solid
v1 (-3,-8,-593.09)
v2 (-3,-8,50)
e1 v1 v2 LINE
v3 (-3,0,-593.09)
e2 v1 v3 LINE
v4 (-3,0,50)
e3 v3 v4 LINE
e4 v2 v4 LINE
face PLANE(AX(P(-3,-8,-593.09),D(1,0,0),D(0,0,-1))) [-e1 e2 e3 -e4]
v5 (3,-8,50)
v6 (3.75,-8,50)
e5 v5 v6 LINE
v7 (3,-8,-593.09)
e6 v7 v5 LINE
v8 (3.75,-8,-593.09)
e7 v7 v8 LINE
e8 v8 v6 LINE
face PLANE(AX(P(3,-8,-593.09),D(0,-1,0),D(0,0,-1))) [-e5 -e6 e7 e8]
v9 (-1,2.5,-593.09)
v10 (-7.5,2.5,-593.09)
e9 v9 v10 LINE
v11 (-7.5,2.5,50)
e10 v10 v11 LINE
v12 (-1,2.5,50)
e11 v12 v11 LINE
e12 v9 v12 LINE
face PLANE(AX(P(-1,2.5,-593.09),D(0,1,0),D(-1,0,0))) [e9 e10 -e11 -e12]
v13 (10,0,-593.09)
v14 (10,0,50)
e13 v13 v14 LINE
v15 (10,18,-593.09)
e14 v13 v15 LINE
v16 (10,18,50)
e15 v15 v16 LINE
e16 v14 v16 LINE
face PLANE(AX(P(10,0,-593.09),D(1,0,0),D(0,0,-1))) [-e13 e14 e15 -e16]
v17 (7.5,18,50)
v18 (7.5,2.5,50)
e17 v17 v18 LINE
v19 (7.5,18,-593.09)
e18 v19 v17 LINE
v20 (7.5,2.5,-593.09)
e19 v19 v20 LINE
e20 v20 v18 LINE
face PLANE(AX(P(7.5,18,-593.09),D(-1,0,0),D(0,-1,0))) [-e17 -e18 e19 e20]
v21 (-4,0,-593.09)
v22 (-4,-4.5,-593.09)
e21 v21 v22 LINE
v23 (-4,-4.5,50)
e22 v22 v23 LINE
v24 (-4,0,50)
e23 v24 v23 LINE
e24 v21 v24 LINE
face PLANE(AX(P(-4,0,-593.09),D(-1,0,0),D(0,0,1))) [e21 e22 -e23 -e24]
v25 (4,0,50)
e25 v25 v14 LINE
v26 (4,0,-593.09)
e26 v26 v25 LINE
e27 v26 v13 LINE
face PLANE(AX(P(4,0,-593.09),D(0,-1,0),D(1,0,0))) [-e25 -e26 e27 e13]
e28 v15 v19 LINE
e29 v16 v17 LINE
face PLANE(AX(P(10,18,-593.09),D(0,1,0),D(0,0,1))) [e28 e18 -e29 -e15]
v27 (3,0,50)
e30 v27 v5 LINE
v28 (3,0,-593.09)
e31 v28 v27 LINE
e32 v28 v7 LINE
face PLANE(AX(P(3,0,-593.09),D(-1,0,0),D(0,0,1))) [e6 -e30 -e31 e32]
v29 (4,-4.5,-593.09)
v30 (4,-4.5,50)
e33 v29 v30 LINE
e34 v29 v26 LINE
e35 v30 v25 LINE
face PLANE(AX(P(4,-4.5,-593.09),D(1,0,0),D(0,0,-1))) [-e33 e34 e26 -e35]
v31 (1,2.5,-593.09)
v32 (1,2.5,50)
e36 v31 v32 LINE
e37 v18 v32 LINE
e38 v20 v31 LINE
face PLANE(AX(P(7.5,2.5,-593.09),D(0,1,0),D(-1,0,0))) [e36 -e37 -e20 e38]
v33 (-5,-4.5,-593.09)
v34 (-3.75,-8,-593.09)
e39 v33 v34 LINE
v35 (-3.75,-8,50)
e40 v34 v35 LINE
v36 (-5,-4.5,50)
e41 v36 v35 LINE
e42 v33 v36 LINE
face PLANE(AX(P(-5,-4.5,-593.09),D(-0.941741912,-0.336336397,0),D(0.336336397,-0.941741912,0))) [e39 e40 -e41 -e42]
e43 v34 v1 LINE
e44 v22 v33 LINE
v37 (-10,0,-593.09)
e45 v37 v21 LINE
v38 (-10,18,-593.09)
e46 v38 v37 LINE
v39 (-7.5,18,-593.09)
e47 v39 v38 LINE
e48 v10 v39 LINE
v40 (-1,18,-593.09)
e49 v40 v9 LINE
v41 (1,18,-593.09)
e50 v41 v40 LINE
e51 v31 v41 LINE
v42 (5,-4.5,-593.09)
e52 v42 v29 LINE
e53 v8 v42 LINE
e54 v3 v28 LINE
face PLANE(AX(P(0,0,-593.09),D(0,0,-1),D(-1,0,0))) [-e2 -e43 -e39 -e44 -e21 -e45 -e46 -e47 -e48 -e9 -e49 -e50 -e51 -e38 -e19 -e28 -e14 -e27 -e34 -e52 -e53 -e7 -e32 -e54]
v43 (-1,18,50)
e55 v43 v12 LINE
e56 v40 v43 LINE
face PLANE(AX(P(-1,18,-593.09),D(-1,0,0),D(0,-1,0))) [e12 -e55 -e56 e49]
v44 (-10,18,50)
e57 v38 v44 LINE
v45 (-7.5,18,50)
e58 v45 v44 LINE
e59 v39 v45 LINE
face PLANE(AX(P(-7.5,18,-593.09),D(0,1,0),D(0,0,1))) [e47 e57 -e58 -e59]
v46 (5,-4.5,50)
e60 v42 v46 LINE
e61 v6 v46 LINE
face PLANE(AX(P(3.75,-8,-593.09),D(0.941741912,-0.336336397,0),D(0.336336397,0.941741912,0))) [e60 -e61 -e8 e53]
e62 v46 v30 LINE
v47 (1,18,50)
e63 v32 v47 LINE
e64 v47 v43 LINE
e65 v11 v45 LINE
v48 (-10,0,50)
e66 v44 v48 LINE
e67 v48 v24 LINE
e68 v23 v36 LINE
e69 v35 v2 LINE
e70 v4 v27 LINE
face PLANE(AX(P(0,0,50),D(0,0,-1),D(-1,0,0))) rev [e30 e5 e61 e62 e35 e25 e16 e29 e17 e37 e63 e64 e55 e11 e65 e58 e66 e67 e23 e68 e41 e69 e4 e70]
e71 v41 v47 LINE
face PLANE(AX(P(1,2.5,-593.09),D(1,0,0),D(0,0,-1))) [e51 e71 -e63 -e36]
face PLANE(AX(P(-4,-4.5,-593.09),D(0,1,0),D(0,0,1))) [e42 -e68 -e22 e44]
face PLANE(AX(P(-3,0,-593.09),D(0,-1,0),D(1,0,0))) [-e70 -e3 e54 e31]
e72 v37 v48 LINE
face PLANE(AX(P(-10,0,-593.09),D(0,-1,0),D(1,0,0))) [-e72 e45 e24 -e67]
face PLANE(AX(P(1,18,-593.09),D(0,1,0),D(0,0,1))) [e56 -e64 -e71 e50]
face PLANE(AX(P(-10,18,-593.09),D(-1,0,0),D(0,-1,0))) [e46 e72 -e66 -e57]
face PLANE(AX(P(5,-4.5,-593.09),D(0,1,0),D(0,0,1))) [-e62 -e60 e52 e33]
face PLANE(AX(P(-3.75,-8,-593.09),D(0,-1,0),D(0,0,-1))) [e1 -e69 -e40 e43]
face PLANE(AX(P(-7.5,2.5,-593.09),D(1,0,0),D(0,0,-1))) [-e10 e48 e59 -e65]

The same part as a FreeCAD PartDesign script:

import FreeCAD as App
import Part
import Sketcher
Q = App.Units.Quantity


def add_polygon(sketch, points):
    """Adds a closed chain of lines whose ends are joined by coincident constraints."""
    first, n = sketch.GeometryCount, len(points)
    for a, b in zip(points, points[1:] + points[:1]):
        sketch.addGeometry(Part.LineSegment(App.Vector(*a, 0), App.Vector(*b, 0)), False)
    for i in range(n):
        sketch.addConstraint(Sketcher.Constraint("Coincident", first + i, 2, first + (i + 1) % n, 1))

doc = App.newDocument("Part")
body = doc.addObject("PartDesign::Body", "Body")

sketch1 = doc.addObject("Sketcher::SketchObject", "Sketch")
body.addObject(sketch1)
sketch1.AttachmentSupport = (doc.XY_Plane, [""])
sketch1.MapMode = "FlatFace"
sketch1.AttachmentOffset = App.Placement(App.Vector(0, 0, 50), App.Rotation())
add_polygon(sketch1, [(-1, 2.5), (-7.5, 2.5), (-7.5, 18), (-10, 18), (-10, 0), (-4, 0), (-4, -4.5), (-5, -4.5), (-3.8, -8), (-3, -8), (-3, 0), (3, 0), (3, -8), (3.8, -8), (5, -4.5), (4, -4.5), (4, 0), (10, 0), (10, 18), (7.5, 18), (7.5, 2.5), (1, 2.5), (1, 18), (-1, 18)])
sketch1.addConstraint(Sketcher.Constraint("Horizontal", 0))
sketch1.addConstraint(Sketcher.Constraint("Vertical", 1))
sketch1.addConstraint(Sketcher.Constraint("Horizontal", 2))
sketch1.addConstraint(Sketcher.Constraint("Vertical", 3))
sketch1.addConstraint(Sketcher.Constraint("Horizontal", 4))
sketch1.addConstraint(Sketcher.Constraint("Vertical", 5))
sketch1.addConstraint(Sketcher.Constraint("Horizontal", 6))
sketch1.addConstraint(Sketcher.Constraint("Horizontal", 8))
sketch1.addConstraint(Sketcher.Constraint("Vertical", 9))
sketch1.addConstraint(Sketcher.Constraint("Horizontal", 10))
sketch1.addConstraint(Sketcher.Constraint("Vertical", 11))
sketch1.addConstraint(Sketcher.Constraint("Horizontal", 12))
sketch1.addConstraint(Sketcher.Constraint("Horizontal", 14))
sketch1.addConstraint(Sketcher.Constraint("Vertical", 15))
sketch1.addConstraint(Sketcher.Constraint("Horizontal", 16))
sketch1.addConstraint(Sketcher.Constraint("Vertical", 17))
sketch1.addConstraint(Sketcher.Constraint("Horizontal", 18))
sketch1.addConstraint(Sketcher.Constraint("Vertical", 19))
sketch1.addConstraint(Sketcher.Constraint("Horizontal", 20))
sketch1.addConstraint(Sketcher.Constraint("Vertical", 21))
sketch1.addConstraint(Sketcher.Constraint("Horizontal", 22))
sketch1.addConstraint(Sketcher.Constraint("Vertical", 23))
sketch1.addConstraint(Sketcher.Constraint("Symmetric", 9, 2, 10, 2, -1, 1))
sketch1.addConstraint(Sketcher.Constraint("Symmetric", 4, 2, 15, 2, -1, 1))
sketch1.addConstraint(Sketcher.Constraint("Symmetric", 7, 2, 12, 2, -2))
sketch1.addConstraint(Sketcher.Constraint("Symmetric", 6, 2, 13, 2, -2))
sketch1.addConstraint(Sketcher.Constraint("Symmetric", 3, 2, 16, 2, -2))
sketch1.addConstraint(Sketcher.Constraint("Symmetric", 1, 2, 18, 2, -2))
sketch1.addConstraint(Sketcher.Constraint("Symmetric", 20, 2, 23, 2, -2))
sketch1.addConstraint(Sketcher.Constraint("Horizontal", 18, 2, 21, 2))
sketch1.addConstraint(Sketcher.Constraint("Equal", 4, 10))
sketch1.addConstraint(Sketcher.Constraint("DistanceX", 4, 1, 4, 2, Q("6 mm")))
sketch1.addConstraint(Sketcher.Constraint("DistanceX", 6, 2, 6, 1, Q("1 mm")))
sketch1.addConstraint(Sketcher.Constraint("DistanceX", 22, 2, 22, 1, Q("2 mm")))
sketch1.addConstraint(Sketcher.Constraint("DistanceY", 3, 2, 3, 1, Q("18 mm")))
sketch1.addConstraint(Sketcher.Constraint("DistanceY", 9, 1, 9, 2, Q("8 mm")))
sketch1.addConstraint(Sketcher.Constraint("DistanceX", 0, 2, 0, 1, Q("6.5 mm")))
sketch1.addConstraint(Sketcher.Constraint("DistanceX", 2, 2, 2, 1, Q("2.5 mm")))
sketch1.addConstraint(Sketcher.Constraint("DistanceY", 1, 1, 1, 2, Q("15.5 mm")))
sketch1.addConstraint(Sketcher.Constraint("DistanceY", 5, 2, 5, 1, Q("4.5 mm")))
sketch1.addConstraint(Sketcher.Constraint("DistanceX", 8, 1, 8, 2, Q("0.75 mm")))
pad1 = doc.addObject("PartDesign::Pad", "Pad")
body.addObject(pad1)
pad1.Profile = sketch1
pad1.Length = 643.09
pad1.Reversed = True

doc.recompute()
